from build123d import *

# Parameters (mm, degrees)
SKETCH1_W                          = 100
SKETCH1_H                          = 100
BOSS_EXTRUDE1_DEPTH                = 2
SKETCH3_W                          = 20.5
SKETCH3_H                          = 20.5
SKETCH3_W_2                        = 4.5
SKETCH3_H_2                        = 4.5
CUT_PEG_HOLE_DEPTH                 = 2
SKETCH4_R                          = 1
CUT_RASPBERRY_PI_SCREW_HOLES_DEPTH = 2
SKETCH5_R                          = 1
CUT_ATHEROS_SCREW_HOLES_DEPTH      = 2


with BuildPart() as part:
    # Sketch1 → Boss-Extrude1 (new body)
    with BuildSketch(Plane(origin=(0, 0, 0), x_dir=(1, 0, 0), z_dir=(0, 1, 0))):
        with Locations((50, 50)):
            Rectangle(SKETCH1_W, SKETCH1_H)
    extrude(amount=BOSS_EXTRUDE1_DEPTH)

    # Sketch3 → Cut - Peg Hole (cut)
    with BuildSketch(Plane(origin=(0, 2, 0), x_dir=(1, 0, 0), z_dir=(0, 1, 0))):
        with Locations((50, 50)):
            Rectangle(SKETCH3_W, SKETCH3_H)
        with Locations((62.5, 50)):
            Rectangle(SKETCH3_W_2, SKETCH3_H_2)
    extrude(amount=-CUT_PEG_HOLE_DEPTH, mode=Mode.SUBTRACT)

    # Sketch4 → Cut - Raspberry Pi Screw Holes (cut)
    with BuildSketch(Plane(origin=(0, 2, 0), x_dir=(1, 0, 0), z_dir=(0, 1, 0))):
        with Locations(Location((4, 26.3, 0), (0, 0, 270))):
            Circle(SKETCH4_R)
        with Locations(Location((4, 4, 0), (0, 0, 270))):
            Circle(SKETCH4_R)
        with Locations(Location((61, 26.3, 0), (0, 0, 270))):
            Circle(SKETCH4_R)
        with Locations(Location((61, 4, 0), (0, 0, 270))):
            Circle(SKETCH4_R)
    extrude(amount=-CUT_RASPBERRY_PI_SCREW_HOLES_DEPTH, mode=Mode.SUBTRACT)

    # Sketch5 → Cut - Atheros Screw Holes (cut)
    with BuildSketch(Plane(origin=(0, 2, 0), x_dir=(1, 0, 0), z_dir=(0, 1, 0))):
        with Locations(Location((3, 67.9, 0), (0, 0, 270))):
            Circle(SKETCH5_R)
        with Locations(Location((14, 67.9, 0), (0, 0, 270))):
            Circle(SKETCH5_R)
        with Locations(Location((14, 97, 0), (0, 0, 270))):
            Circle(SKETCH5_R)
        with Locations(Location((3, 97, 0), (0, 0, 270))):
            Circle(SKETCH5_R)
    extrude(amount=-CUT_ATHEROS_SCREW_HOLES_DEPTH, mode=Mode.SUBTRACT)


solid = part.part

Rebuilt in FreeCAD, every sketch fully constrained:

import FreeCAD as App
import Part
import Sketcher
from FreeCAD import Vector
Q = App.Units.Quantity


def add_polygon(sketch, points):
    """Adds a closed chain of lines whose ends are joined by coincident constraints."""
    first, n = sketch.GeometryCount, len(points)
    for a, b in zip(points, points[1:] + points[:1]):
        sketch.addGeometry(Part.LineSegment(App.Vector(*a, 0), App.Vector(*b, 0)), False)
    for i in range(n):
        sketch.addConstraint(Sketcher.Constraint("Coincident", first + i, 2, first + (i + 1) % n, 1))

doc = App.newDocument("Part")
params = doc.addObject("Spreadsheet::Sheet", "Params")
for row, (alias, value) in enumerate([
    ("sketch1_width", "100 mm"),
    ("pad1_length", "2 mm"),
    ("sketch2_height", "8 mm"),
    ("sketch2_width", "20.5 mm"),
    ("pocket1_length", "2 mm"),
    ("sketch3_diameter", "2 mm"),
    ("pocket2_length", "2 mm"),
    ("sketch4_diameter", "2 mm"),
    ("pocket3_length", "2 mm"),
], start=1):
    params.set(f"A{row}", alias)
    params.set(f"B{row}", "=" + value)
    params.setAlias(f"B{row}", alias)

body = doc.addObject("PartDesign::Body", "Body")

# Sketch on XZ plane
sketch1 = body.newObject("Sketcher::SketchObject", "Sketch")
sketch1.AttachmentSupport = (doc.getObject("XZ_Plane"), [""])
sketch1.MapMode = "FlatFace"
add_polygon(sketch1, [(0, -100), (0, 0), (100, 0), (100, -100)])  # lines 0-3
sketch1.addConstraint(Sketcher.Constraint("Vertical", 0))
sketch1.addConstraint(Sketcher.Constraint("Horizontal", 1))
sketch1.addConstraint(Sketcher.Constraint("Vertical", 2))
sketch1.addConstraint(Sketcher.Constraint("Horizontal", 3))
sketch1.addConstraint(Sketcher.Constraint("Coincident", 0, 2, -1, 1))
sketch1.addConstraint(Sketcher.Constraint("Equal", 3, 0))
sketch1.addConstraint(Sketcher.Constraint("DistanceX", 1, 1, 1, 2, Q("100 mm")))
sketch1.setExpression("Constraints[10]", "Params.sketch1_width")
pad1 = body.newObject("PartDesign::Pad", "Pad")
pad1.Profile = sketch1
pad1.setExpression("Length", "Params.pad1_length")
pad1.Reversed = True

# Sketch on XZ plane
sketch2 = body.newObject("Sketcher::SketchObject", "Sketch001")
sketch2.AttachmentSupport = (doc.getObject("XZ_Plane"), [""])
sketch2.MapMode = "FlatFace"
sketch2.AttachmentOffset = App.Placement(Vector(0, 0, -2), App.Rotation())
add_polygon(sketch2, [(39.8, -60.2), (39.8, -39.8), (60.2, -39.8), (60.2, -47.8), (64.8, -47.8), (64.8, -52.2), (60.2, -52.2), (60.2, -60.2)])  # lines 0-7
sketch2.addConstraint(Sketcher.Constraint("Vertical", 0))
sketch2.addConstraint(Sketcher.Constraint("Horizontal", 1))
sketch2.addConstraint(Sketcher.Constraint("Vertical", 2))
sketch2.addConstraint(Sketcher.Constraint("Horizontal", 3))
sketch2.addConstraint(Sketcher.Constraint("Vertical", 4))
sketch2.addConstraint(Sketcher.Constraint("Horizontal", 5))
sketch2.addConstraint(Sketcher.Constraint("Vertical", 6))
sketch2.addConstraint(Sketcher.Constraint("Horizontal", 7))
sketch2.addConstraint(Sketcher.Constraint("Vertical", 2, 2, 5, 2))
sketch2.addConstraint(Sketcher.Constraint("Equal", 7, 0))
sketch2.addConstraint(Sketcher.Constraint("Equal", 5, 4))
sketch2.addConstraint(Sketcher.Constraint("Equal", 2, 6))
sketch2.addConstraint(Sketcher.Constraint("DistanceY", 2, 2, 2, 1, Q("8 mm")))
sketch2.addConstraint(Sketcher.Constraint("DistanceX", 1, 1, 1, 2, Q("20.5 mm")))
sketch2.addConstraint(Sketcher.Constraint("DistanceX", -1, 1, 0, 2, Q("39.75 mm")))
sketch2.addConstraint(Sketcher.Constraint("DistanceY", 0, 2, -1, 1, Q("39.75 mm")))
sketch2.setExpression("Constraints[20]", "Params.sketch2_height")
sketch2.setExpression("Constraints[21]", "Params.sketch2_width")
pocket1 = body.newObject("PartDesign::Pocket", "Pocket")
pocket1.Profile = sketch2
pocket1.setExpression("Length", "Params.pocket1_length")
pocket1.Reversed = True

# Sketch on XZ plane
sketch3 = body.newObject("Sketcher::SketchObject", "Sketch002")
sketch3.AttachmentSupport = (doc.getObject("XZ_Plane"), [""])
sketch3.MapMode = "FlatFace"
sketch3.AttachmentOffset = App.Placement(Vector(0, 0, -2), App.Rotation())
sketch3.addGeometry(Part.Circle(Vector(4, -26.3, 0), Vector(0, 0, 1), 1), False)
sketch3.addGeometry(Part.Circle(Vector(4, -4, 0), Vector(0, 0, 1), 1), False)
sketch3.addGeometry(Part.Circle(Vector(61, -26.3, 0), Vector(0, 0, 1), 1), False)
sketch3.addGeometry(Part.Circle(Vector(61, -4, 0), Vector(0, 0, 1), 1), False)
sketch3.addConstraint(Sketcher.Constraint("Equal", 0, 1))
sketch3.addConstraint(Sketcher.Constraint("Equal", 1, 2))
sketch3.addConstraint(Sketcher.Constraint("Equal", 2, 3))
sketch3.addConstraint(Sketcher.Constraint("Horizontal", 0, 3, 2, 3))
sketch3.addConstraint(Sketcher.Constraint("Horizontal", 1, 3, 3, 3))
sketch3.addConstraint(Sketcher.Constraint("Vertical", 0, 3, 1, 3))
sketch3.addConstraint(Sketcher.Constraint("Vertical", 2, 3, 3, 3))
sketch3.addConstraint(Sketcher.Constraint("Diameter", 0, Q("2 mm")))
sketch3.addConstraint(Sketcher.Constraint("DistanceX", -1, 1, 0, 3, Q("4 mm")))
sketch3.addConstraint(Sketcher.Constraint("DistanceY", 1, 3, -1, 1, Q("4 mm")))
sketch3.addConstraint(Sketcher.Constraint("DistanceX", -1, 1, 2, 3, Q("61 mm")))
sketch3.addConstraint(Sketcher.Constraint("DistanceY", 0, 3, -1, 1, Q("26.3 mm")))
sketch3.setExpression("Constraints[7]", "Params.sketch3_diameter")
pocket2 = body.newObject("PartDesign::Pocket", "Pocket001")
pocket2.Profile = sketch3
pocket2.setExpression("Length", "Params.pocket2_length")
pocket2.Reversed = True

# Sketch on XZ plane
sketch4 = body.newObject("Sketcher::SketchObject", "Sketch003")
sketch4.AttachmentSupport = (doc.getObject("XZ_Plane"), [""])
sketch4.MapMode = "FlatFace"
sketch4.AttachmentOffset = App.Placement(Vector(0, 0, -2), App.Rotation())
sketch4.addGeometry(Part.Circle(Vector(3, -67.9, 0), Vector(0, 0, 1), 1), False)
sketch4.addGeometry(Part.Circle(Vector(14, -67.9, 0), Vector(0, 0, 1), 1), False)
sketch4.addGeometry(Part.Circle(Vector(14, -97, 0), Vector(0, 0, 1), 1), False)
sketch4.addGeometry(Part.Circle(Vector(3, -97, 0), Vector(0, 0, 1), 1), False)
sketch4.addConstraint(Sketcher.Constraint("Equal", 0, 1))
sketch4.addConstraint(Sketcher.Constraint("Equal", 1, 2))
sketch4.addConstraint(Sketcher.Constraint("Equal", 2, 3))
sketch4.addConstraint(Sketcher.Constraint("Horizontal", 0, 3, 1, 3))
sketch4.addConstraint(Sketcher.Constraint("Horizontal", 2, 3, 3, 3))
sketch4.addConstraint(Sketcher.Constraint("Vertical", 1, 3, 2, 3))
sketch4.addConstraint(Sketcher.Constraint("Vertical", 0, 3, 3, 3))
sketch4.addConstraint(Sketcher.Constraint("Diameter", 0, Q("2 mm")))
sketch4.addConstraint(Sketcher.Constraint("DistanceX", -1, 1, 0, 3, Q("3 mm")))
sketch4.addConstraint(Sketcher.Constraint("DistanceX", -1, 1, 1, 3, Q("14 mm")))
sketch4.addConstraint(Sketcher.Constraint("DistanceY", 2, 3, -1, 1, Q("97 mm")))
sketch4.addConstraint(Sketcher.Constraint("DistanceY", 0, 3, -1, 1, Q("67.9 mm")))
sketch4.setExpression("Constraints[7]", "Params.sketch4_diameter")
pocket3 = body.newObject("PartDesign::Pocket", "Pocket002")
pocket3.Profile = sketch4
pocket3.setExpression("Length", "Params.pocket3_length")
pocket3.Reversed = True

doc.recompute()
